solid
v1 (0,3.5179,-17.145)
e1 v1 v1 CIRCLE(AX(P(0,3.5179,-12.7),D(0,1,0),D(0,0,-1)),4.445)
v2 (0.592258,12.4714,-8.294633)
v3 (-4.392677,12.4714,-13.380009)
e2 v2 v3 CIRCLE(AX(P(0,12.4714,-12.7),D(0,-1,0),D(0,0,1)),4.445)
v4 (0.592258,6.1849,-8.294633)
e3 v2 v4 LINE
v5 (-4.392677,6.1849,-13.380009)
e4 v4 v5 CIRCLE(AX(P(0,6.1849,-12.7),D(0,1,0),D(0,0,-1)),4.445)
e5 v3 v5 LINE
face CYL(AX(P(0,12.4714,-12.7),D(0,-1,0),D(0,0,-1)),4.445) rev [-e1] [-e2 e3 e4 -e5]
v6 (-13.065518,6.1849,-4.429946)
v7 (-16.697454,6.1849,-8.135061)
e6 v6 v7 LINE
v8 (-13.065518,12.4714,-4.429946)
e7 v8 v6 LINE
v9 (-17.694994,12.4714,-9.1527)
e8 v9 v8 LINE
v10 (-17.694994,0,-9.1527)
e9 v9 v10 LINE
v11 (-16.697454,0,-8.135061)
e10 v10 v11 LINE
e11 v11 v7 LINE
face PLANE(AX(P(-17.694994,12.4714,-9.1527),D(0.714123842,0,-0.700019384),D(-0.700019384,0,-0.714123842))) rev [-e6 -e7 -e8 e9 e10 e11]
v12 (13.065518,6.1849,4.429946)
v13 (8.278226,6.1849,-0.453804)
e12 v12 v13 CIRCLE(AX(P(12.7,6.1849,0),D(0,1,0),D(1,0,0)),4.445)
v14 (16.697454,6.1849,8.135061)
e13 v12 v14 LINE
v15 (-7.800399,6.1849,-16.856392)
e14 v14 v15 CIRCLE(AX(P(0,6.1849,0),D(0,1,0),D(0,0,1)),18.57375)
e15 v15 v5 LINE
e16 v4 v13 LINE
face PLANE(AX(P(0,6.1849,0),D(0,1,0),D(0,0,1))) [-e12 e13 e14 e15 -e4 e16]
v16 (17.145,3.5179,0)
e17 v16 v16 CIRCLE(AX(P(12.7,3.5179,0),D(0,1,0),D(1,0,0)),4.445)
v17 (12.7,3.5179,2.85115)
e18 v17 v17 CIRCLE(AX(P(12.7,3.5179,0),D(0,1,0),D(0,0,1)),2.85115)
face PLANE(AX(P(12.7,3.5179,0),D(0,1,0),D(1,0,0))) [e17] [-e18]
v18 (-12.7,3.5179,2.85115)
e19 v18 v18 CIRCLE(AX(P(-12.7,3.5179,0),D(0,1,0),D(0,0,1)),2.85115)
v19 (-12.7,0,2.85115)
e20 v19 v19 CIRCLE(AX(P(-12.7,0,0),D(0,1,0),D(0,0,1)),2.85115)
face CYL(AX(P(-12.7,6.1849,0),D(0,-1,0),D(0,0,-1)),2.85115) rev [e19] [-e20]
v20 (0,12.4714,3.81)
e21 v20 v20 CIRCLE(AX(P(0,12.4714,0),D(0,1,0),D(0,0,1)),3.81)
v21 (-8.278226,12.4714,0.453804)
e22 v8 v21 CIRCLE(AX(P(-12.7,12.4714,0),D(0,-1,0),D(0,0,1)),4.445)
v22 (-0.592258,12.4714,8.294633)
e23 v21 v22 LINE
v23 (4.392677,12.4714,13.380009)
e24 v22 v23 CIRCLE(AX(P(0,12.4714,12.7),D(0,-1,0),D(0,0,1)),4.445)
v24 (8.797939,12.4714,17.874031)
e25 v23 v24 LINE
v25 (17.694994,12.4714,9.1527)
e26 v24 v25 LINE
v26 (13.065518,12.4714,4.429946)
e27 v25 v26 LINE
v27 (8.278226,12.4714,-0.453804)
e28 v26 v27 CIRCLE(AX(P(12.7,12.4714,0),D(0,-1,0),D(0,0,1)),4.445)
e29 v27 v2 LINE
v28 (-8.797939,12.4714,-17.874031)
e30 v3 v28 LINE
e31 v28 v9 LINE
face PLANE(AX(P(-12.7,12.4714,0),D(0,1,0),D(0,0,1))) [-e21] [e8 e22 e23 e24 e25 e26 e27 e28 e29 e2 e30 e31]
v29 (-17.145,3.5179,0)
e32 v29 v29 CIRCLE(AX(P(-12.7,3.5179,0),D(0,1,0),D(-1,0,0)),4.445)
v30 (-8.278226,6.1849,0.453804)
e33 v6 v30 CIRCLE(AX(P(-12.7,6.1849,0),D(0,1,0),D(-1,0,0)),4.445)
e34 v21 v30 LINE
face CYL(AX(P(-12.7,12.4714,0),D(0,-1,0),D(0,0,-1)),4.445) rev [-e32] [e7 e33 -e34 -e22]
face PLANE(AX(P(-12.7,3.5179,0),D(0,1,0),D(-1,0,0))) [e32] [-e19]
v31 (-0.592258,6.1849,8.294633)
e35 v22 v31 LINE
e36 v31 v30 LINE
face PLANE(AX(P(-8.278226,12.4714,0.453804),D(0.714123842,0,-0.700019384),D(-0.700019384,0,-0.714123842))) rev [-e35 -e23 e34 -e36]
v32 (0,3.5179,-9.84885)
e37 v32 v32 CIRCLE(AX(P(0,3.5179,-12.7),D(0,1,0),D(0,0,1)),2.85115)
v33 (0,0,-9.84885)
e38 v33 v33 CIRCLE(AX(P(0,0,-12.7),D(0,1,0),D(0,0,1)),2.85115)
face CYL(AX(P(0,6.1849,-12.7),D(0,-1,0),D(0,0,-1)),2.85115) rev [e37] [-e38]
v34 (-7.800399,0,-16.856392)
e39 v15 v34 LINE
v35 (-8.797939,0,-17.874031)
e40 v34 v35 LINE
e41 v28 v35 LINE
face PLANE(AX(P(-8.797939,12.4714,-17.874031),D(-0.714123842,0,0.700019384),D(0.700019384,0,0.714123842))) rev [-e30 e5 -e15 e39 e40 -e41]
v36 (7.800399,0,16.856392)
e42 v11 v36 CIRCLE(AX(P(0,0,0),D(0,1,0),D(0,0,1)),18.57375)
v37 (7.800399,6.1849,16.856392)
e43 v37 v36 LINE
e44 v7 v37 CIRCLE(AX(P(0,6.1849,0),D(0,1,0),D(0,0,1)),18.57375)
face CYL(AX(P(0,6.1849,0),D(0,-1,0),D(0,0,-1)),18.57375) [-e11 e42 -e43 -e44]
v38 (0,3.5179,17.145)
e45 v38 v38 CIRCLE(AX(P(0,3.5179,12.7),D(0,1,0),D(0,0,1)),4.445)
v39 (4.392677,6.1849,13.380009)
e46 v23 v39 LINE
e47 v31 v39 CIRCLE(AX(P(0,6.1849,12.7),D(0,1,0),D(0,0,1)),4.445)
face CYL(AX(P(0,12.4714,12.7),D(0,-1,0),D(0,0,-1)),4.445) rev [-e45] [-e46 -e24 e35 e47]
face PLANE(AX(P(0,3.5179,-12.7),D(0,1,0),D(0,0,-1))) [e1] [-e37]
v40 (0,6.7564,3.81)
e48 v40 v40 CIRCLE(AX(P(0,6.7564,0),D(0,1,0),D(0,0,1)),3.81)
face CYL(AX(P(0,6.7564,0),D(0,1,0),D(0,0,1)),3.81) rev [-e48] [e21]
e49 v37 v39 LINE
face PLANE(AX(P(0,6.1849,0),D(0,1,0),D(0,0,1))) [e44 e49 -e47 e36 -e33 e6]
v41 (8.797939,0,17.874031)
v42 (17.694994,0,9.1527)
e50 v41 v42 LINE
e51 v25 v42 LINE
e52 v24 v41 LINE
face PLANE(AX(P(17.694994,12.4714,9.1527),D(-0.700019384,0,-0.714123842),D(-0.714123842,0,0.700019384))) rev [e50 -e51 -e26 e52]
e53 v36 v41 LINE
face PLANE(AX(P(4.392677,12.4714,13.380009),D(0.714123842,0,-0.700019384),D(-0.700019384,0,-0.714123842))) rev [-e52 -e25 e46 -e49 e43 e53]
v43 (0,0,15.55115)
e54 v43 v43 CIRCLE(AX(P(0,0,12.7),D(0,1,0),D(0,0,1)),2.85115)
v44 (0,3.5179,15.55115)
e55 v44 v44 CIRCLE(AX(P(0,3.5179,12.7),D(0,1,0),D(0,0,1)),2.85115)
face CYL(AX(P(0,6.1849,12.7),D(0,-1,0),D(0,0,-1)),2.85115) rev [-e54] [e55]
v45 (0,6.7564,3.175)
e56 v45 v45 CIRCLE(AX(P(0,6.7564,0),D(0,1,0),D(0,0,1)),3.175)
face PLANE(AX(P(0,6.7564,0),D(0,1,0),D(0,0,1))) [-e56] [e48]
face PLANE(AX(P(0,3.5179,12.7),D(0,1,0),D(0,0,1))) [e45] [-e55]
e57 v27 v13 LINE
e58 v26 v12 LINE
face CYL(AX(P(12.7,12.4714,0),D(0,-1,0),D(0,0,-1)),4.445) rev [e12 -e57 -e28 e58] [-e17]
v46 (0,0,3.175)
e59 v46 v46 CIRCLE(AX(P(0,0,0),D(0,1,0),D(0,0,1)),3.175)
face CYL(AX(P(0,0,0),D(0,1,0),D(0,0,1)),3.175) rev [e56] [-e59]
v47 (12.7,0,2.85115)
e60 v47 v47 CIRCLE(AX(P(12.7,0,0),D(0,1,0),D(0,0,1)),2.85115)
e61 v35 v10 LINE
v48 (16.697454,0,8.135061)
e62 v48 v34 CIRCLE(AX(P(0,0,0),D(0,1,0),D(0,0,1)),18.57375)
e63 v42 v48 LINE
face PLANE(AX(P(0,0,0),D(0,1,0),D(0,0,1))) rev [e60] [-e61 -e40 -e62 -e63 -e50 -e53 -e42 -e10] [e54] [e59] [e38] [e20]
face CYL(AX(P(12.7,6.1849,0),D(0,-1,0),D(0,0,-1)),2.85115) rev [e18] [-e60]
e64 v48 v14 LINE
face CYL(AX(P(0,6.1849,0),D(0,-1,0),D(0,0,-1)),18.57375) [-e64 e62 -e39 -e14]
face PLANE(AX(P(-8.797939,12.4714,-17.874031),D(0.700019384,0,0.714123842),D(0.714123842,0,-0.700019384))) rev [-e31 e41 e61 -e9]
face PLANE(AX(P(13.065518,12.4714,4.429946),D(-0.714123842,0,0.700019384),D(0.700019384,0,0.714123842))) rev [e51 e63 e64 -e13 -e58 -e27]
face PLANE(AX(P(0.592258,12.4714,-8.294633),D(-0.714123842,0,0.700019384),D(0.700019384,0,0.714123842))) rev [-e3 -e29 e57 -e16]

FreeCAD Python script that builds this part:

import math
import FreeCAD as App
import Part
import Sketcher

V = App.Vector
Q = App.Units.Quantity

doc = App.newDocument("Part")
body = doc.addObject("PartDesign::Body", "Body")

# Sketch on XZ plane
sketch1 = doc.addObject("Sketcher::SketchObject", "Sketch")
body.addObject(sketch1)
sketch1.AttachmentSupport = (doc.XZ_Plane, [""])
sketch1.MapMode = "FlatFace"
sketch1.addGeometry([
    Part.Circle(V(0, 0, 0), V(0, 0, 1), 18.6),  # 0
    Part.Circle(V(0, 12.7, 0), V(0, 0, 1), 2.9),  # 1
    Part.Circle(V(-12.7, 0, 0), V(0, 0, 1), 2.9),  # 2
    Part.Circle(V(12.7, 0, 0), V(0, 0, 1), 2.9),  # 3
    Part.Circle(V(0, -12.7, 0), V(0, 0, 1), 2.9),  # 4
], False)
sketch1.addConstraint([
    Sketcher.Constraint("Coincident", 0, 3, -1, 1),
    Sketcher.Constraint("Equal", 1, 2),
    Sketcher.Constraint("Equal", 2, 3),
    Sketcher.Constraint("Equal", 3, 4),
    Sketcher.Constraint("Symmetric", 2, 3, 3, 3, -1, 1),
    Sketcher.Constraint("Symmetric", 1, 3, 4, 3, -1, 1),
    Sketcher.Constraint("PointOnObject", 1, 3, -2),
    Sketcher.Constraint("PointOnObject", 2, 3, -1),
    Sketcher.Constraint("DistanceX", 2, 3, 3, 3, Q("1 in")),
    Sketcher.Constraint("DistanceY", 4, 3, 1, 3, Q("1 in")),
    Sketcher.Constraint("Diameter", 0, Q("1.4625 in")),
    Sketcher.Constraint("Diameter", 1, Q("0.2245 in")),
])
pad1 = doc.addObject("PartDesign::Pad", "Pad")
body.addObject(pad1)
pad1.Profile = sketch1
pad1.Length = Q("0.2435 in")
pad1.Reversed = True

# Sketch on XZ plane
sketch2 = doc.addObject("Sketcher::SketchObject", "Sketch001")
body.addObject(sketch2)
sketch2.AttachmentSupport = (doc.XZ_Plane, [""])
sketch2.MapMode = "FlatFace"
sketch2.addGeometry([
    Part.LineSegment(V(-4.4, -13.4, 0), V(-8.8, -17.9, 0)),  # 0
    Part.LineSegment(V(-8.8, -17.9, 0), V(-17.7, -9.2, 0)),  # 1
    Part.LineSegment(V(-17.7, -9.2, 0), V(-13.1, -4.4, 0)),  # 2
    Part.ArcOfCircle(Part.Circle(V(-12.7, 0, 0), V(0, 0, 1), 4.4), math.radians(-95), math.radians(6)),  # 3
    Part.LineSegment(V(-8.3, 0.5, 0), V(-0.6, 8.3, 0)),  # 4
    Part.ArcOfCircle(Part.Circle(V(0, 12.7, 0), V(0, 0, 1), 4.4), math.radians(-98), math.radians(9)),  # 5
    Part.LineSegment(V(4.4, 13.4, 0), V(8.8, 17.9, 0)),  # 6
    Part.LineSegment(V(8.8, 17.9, 0), V(17.7, 9.2, 0)),  # 7
    Part.LineSegment(V(17.7, 9.2, 0), V(13.1, 4.4, 0)),  # 8
    Part.ArcOfCircle(Part.Circle(V(12.7, 0, 0), V(0, 0, 1), 4.4), math.radians(85), math.radians(186)),  # 9
    Part.LineSegment(V(8.3, -0.5, 0), V(0.6, -8.3, 0)),  # 10
    Part.ArcOfCircle(Part.Circle(V(0, -12.7, 0), V(0, 0, 1), 4.4), math.radians(82), math.radians(189)),  # 11
], False)
sketch2.addConstraint([
    Sketcher.Constraint("Coincident", 0, 2, 1, 1),
    Sketcher.Constraint("Coincident", 1, 2, 2, 1),
    Sketcher.Constraint("Coincident", 2, 2, 3, 1),
    Sketcher.Constraint("Coincident", 3, 2, 4, 1),
    Sketcher.Constraint("Coincident", 4, 2, 5, 1),
    Sketcher.Constraint("Coincident", 5, 2, 6, 1),
    Sketcher.Constraint("Coincident", 6, 2, 7, 1),
    Sketcher.Constraint("Coincident", 7, 2, 8, 1),
    Sketcher.Constraint("Coincident", 8, 2, 9, 1),
    Sketcher.Constraint("Coincident", 9, 2, 10, 1),
    Sketcher.Constraint("Coincident", 10, 2, 11, 1),
    Sketcher.Constraint("Coincident", 11, 2, 0, 1),
    Sketcher.Constraint("Equal", 3, 5),
    Sketcher.Constraint("Equal", 5, 9),
    Sketcher.Constraint("Equal", 9, 11),
    Sketcher.Constraint("Symmetric", 3, 3, 9, 3, -1, 1),
    Sketcher.Constraint("Symmetric", 5, 3, 11, 3, -1, 1),
    Sketcher.Constraint("Symmetric", 0, 2, 6, 2, -1, 1),
    Sketcher.Constraint("Symmetric", 1, 2, 7, 2, -1, 1),
    Sketcher.Constraint("PointOnObject", 3, 3, -1),
    Sketcher.Constraint("PointOnObject", 5, 3, -2),
    Sketcher.Constraint("Perpendicular", 0, 1),
    Sketcher.Constraint("Perpendicular", 1, 2),
    Sketcher.Constraint("Parallel", 2, 4),
    Sketcher.Constraint("Parallel", 4, 6),
    Sketcher.Constraint("Perpendicular", 7, 8),
    Sketcher.Constraint("Parallel", 8, 10),
    Sketcher.Constraint("Equal", 4, 10),
    Sketcher.Constraint("Radius", 3, Q("0.175 in")),
    Sketcher.Constraint("DistanceX", 3, 3, 9, 3, Q("1 in")),
    Sketcher.Constraint("DistanceY", 11, 3, 5, 3, Q("1 in")),
    Sketcher.Constraint("Distance", 1, Q("0.4905 in")),
    Sketcher.Constraint("DistanceY", 1, 2, -1, 1, Q("9.1527 mm")),
    Sketcher.Constraint("Distance", 4, Q("10.979649 mm")),
    Sketcher.Constraint("DistanceX", 0, 2, -1, 1, Q("8.797939 mm")),
    Sketcher.Constraint("DistanceY", 0, 2, -1, 1, Q("17.874031 mm")),
])
pad2 = doc.addObject("PartDesign::Pad", "Pad001")
body.addObject(pad2)
pad2.Profile = sketch2
pad2.Length = Q("0.491 in")
pad2.Reversed = True

# Sketch on XZ plane
sketch3 = doc.addObject("Sketcher::SketchObject", "Sketch002")
body.addObject(sketch3)
sketch3.AttachmentSupport = (doc.XZ_Plane, [""])
sketch3.MapMode = "FlatFace"
sketch3.AttachmentOffset = App.Placement(V(0, 0, -0.2435 * 25.4), App.Rotation())
sketch3.addGeometry(Part.Circle(V(0, 12.7, 0), V(0, 0, 1), 4.4), False)
sketch3.addConstraint([
    Sketcher.Constraint("PointOnObject", 0, 3, -2),
    Sketcher.Constraint("Diameter", 0, Q("0.35 in")),
    Sketcher.Constraint("DistanceY", -1, 1, 0, 3, Q("0.5 in")),
])
pocket1 = doc.addObject("PartDesign::Pocket", "Pocket")
body.addObject(pocket1)
pocket1.Profile = sketch3
pocket1.Length = Q("0.105 in")
pocket1.Reversed = True
doc.recompute()

polarpattern = doc.addObject("PartDesign::PolarPattern", "PolarPattern")
body.addObject(polarpattern)
polarpattern.Originals = [pocket1]
polarpattern.Axis = (doc.Y_Axis, [""])
polarpattern.Angle = 360
polarpattern.Occurrences = 4
body.Tip = polarpattern

# Sketch on XZ plane
sketch4 = doc.addObject("Sketcher::SketchObject", "Sketch003")
body.addObject(sketch4)
sketch4.AttachmentSupport = (doc.XZ_Plane, [""])
sketch4.MapMode = "FlatFace"
sketch4.AttachmentOffset = App.Placement(V(0, 0, -0.491 * 25.4), App.Rotation())
sketch4.addGeometry(Part.Circle(V(0, 0, 0), V(0, 0, 1), 3.8), False)
sketch4.addConstraint([
    Sketcher.Constraint("Coincident", 0, 3, -1, 1),
    Sketcher.Constraint("Diameter", 0, Q("0.3 in")),
])
pocket2 = doc.addObject("PartDesign::Pocket", "Pocket001")
body.addObject(pocket2)
pocket2.Profile = sketch4
pocket2.Length = Q("0.225 in")
pocket2.Reversed = True

# Sketch on XZ plane
sketch5 = doc.addObject("Sketcher::SketchObject", "Sketch004")
body.addObject(sketch5)
sketch5.AttachmentSupport = (doc.XZ_Plane, [""])
sketch5.MapMode = "FlatFace"
sketch5.AttachmentOffset = App.Placement(V(0, 0, -0.266 * 25.4), App.Rotation())
sketch5.addGeometry(Part.Circle(V(0, 0, 0), V(0, 0, 1), 3.2), False)
sketch5.addConstraint([
    Sketcher.Constraint("Coincident", 0, 3, -1, 1),
    Sketcher.Constraint("Diameter", 0, Q("0.25 in")),
])
pocket3 = doc.addObject("PartDesign::Pocket", "Pocket002")
body.addObject(pocket3)
pocket3.Profile = sketch5
pocket3.Type = "ThroughAll"
pocket3.Reversed = True

doc.recompute()
